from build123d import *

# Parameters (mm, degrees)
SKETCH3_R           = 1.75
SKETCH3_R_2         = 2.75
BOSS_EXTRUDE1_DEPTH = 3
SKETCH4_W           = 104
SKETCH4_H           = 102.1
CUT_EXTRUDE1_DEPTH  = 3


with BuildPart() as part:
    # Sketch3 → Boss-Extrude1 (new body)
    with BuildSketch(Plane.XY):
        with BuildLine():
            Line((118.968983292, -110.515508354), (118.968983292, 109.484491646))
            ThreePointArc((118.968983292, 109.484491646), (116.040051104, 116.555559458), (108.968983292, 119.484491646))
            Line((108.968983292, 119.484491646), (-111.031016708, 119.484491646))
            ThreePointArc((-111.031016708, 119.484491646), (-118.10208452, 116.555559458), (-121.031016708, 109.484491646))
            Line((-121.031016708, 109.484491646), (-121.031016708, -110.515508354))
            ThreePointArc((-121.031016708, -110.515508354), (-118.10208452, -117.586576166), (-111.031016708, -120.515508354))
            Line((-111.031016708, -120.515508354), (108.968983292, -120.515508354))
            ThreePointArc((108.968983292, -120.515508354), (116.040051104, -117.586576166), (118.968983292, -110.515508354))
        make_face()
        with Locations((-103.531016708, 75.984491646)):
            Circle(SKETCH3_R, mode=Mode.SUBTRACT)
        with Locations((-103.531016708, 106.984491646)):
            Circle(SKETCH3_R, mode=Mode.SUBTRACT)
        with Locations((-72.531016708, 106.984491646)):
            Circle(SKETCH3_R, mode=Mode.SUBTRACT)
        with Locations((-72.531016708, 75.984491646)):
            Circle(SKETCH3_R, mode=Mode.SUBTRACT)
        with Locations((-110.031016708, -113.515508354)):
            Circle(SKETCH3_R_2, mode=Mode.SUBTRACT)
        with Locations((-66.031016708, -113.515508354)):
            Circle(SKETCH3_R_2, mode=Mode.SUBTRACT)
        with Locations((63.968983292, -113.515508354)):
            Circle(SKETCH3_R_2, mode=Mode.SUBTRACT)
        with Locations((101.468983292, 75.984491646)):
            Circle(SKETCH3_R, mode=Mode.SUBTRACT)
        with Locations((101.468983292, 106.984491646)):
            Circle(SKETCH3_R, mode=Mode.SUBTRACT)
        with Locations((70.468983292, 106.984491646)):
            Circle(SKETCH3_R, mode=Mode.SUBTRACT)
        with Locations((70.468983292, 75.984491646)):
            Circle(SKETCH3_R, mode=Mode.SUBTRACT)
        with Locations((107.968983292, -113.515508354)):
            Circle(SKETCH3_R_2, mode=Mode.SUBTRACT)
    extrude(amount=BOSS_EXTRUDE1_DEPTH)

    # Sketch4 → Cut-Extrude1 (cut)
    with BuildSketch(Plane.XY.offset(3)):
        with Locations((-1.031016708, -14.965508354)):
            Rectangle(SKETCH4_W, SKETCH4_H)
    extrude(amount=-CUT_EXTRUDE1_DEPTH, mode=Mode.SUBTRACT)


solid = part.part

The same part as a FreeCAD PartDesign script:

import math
import FreeCAD as App
import Part
import Sketcher
from FreeCAD import Vector

doc = App.newDocument("Part")
params = doc.addObject("Spreadsheet::Sheet", "Params")
for row, (alias, value) in enumerate([
    ("sketch1_radius", "10 mm"),
    ("sketch1_diameter", "5.5 mm"),
    ("sketch1_diameter2", "3.5 mm"),
    ("sketch1_width", "220 mm"),
    ("pad1_length", "3 mm"),
    ("sketch2_width", "104 mm"),
    ("sketch2_height", "102.1 mm"),
    ("pocket1_length", "3 mm"),
], start=1):
    params.set(f"A{row}", alias)
    params.set(f"B{row}", "=" + value)
    params.setAlias(f"B{row}", alias)

body = doc.addObject("PartDesign::Body", "Body")

# Sketch on XY plane
sketch1 = body.newObject("Sketcher::SketchObject", "Sketch")
sketch1.AttachmentSupport = (doc.getObject("XY_Plane"), [""])
sketch1.MapMode = "FlatFace"
sketch1.addGeometry(Part.LineSegment(Vector(119, -110.5, 0), Vector(119, 109.5, 0)), False)
sketch1.addGeometry(Part.ArcOfCircle(Part.Circle(Vector(109, 109.5, 0), Vector(0, 0, 1), 10), math.radians(0), math.radians(90)), False)
sketch1.addGeometry(Part.LineSegment(Vector(109, 119.5, 0), Vector(-111, 119.5, 0)), False)
sketch1.addGeometry(Part.ArcOfCircle(Part.Circle(Vector(-111, 109.5, 0), Vector(0, 0, 1), 10), math.radians(90), math.radians(180)), False)
sketch1.addGeometry(Part.LineSegment(Vector(-121, 109.5, 0), Vector(-121, -110.5, 0)), False)
sketch1.addGeometry(Part.ArcOfCircle(Part.Circle(Vector(-111, -110.5, 0), Vector(0, 0, 1), 10), math.radians(180), math.radians(270)), False)
sketch1.addGeometry(Part.LineSegment(Vector(-111, -120.5, 0), Vector(109, -120.5, 0)), False)
sketch1.addGeometry(Part.ArcOfCircle(Part.Circle(Vector(109, -110.5, 0), Vector(0, 0, 1), 10), math.radians(-90), math.radians(0)), False)
sketch1.addGeometry(Part.Circle(Vector(-110, -113.5, 0), Vector(0, 0, 1), 2.8), False)
sketch1.addGeometry(Part.Circle(Vector(-66, -113.5, 0), Vector(0, 0, 1), 2.8), False)
sketch1.addGeometry(Part.Circle(Vector(64, -113.5, 0), Vector(0, 0, 1), 2.8), False)
sketch1.addGeometry(Part.Circle(Vector(108, -113.5, 0), Vector(0, 0, 1), 2.8), False)
sketch1.addGeometry(Part.Circle(Vector(-103.5, 76, 0), Vector(0, 0, 1), 1.8), False)
sketch1.addGeometry(Part.Circle(Vector(-72.5, 76, 0), Vector(0, 0, 1), 1.8), False)
sketch1.addGeometry(Part.Circle(Vector(-103.5, 107, 0), Vector(0, 0, 1), 1.8), False)
sketch1.addGeometry(Part.Circle(Vector(-72.5, 107, 0), Vector(0, 0, 1), 1.8), False)
sketch1.addGeometry(Part.Circle(Vector(70.5, 76, 0), Vector(0, 0, 1), 1.8), False)
sketch1.addGeometry(Part.Circle(Vector(101.5, 76, 0), Vector(0, 0, 1), 1.8), False)
sketch1.addGeometry(Part.Circle(Vector(70.5, 107, 0), Vector(0, 0, 1), 1.8), False)
sketch1.addGeometry(Part.Circle(Vector(101.5, 107, 0), Vector(0, 0, 1), 1.8), False)
sketch1.addConstraint(Sketcher.Constraint("Tangent", 0, 2, 1, 1))
sketch1.addConstraint(Sketcher.Constraint("Tangent", 1, 2, 2, 1))
sketch1.addConstraint(Sketcher.Constraint("Tangent", 2, 2, 3, 1))
sketch1.addConstraint(Sketcher.Constraint("Tangent", 3, 2, 4, 1))
sketch1.addConstraint(Sketcher.Constraint("Tangent", 4, 2, 5, 1))
sketch1.addConstraint(Sketcher.Constraint("Tangent", 5, 2, 6, 1))
sketch1.addConstraint(Sketcher.Constraint("Tangent", 6, 2, 7, 1))
sketch1.addConstraint(Sketcher.Constraint("Tangent", 7, 2, 0, 1))
sketch1.addConstraint(Sketcher.Constraint("Vertical", 0))
sketch1.addConstraint(Sketcher.Constraint("Horizontal", 2))
sketch1.addConstraint(Sketcher.Constraint("Vertical", 4))
sketch1.addConstraint(Sketcher.Constraint("Horizontal", 6))
sketch1.addConstraint(Sketcher.Constraint("Equal", 1, 3))
sketch1.addConstraint(Sketcher.Constraint("Equal", 3, 5))
sketch1.addConstraint(Sketcher.Constraint("Equal", 5, 7))
sketch1.addConstraint(Sketcher.Constraint("Equal", 8, 9))
sketch1.addConstraint(Sketcher.Constraint("Equal", 9, 10))
sketch1.addConstraint(Sketcher.Constraint("Equal", 10, 11))
sketch1.addConstraint(Sketcher.Constraint("Equal", 12, 13))
sketch1.addConstraint(Sketcher.Constraint("Equal", 13, 14))
sketch1.addConstraint(Sketcher.Constraint("Equal", 14, 15))
sketch1.addConstraint(Sketcher.Constraint("Equal", 15, 16))
sketch1.addConstraint(Sketcher.Constraint("Equal", 16, 17))
sketch1.addConstraint(Sketcher.Constraint("Equal", 17, 18))
sketch1.addConstraint(Sketcher.Constraint("Equal", 18, 19))
sketch1.addConstraint(Sketcher.Constraint("Horizontal", 8, 3, 9, 3))
sketch1.addConstraint(Sketcher.Constraint("Horizontal", 9, 3, 10, 3))
sketch1.addConstraint(Sketcher.Constraint("Horizontal", 10, 3, 11, 3))
sketch1.addConstraint(Sketcher.Constraint("Horizontal", 12, 3, 13, 3))
sketch1.addConstraint(Sketcher.Constraint("Horizontal", 14, 3, 15, 3))
sketch1.addConstraint(Sketcher.Constraint("Horizontal", 13, 3, 16, 3))
sketch1.addConstraint(Sketcher.Constraint("Horizontal", 16, 3, 17, 3))
sketch1.addConstraint(Sketcher.Constraint("Horizontal", 15, 3, 18, 3))
sketch1.addConstraint(Sketcher.Constraint("Horizontal", 18, 3, 19, 3))
sketch1.addConstraint(Sketcher.Constraint("Vertical", 12, 3, 14, 3))
sketch1.addConstraint(Sketcher.Constraint("Vertical", 13, 3, 15, 3))
sketch1.addConstraint(Sketcher.Constraint("Vertical", 16, 3, 18, 3))
sketch1.addConstraint(Sketcher.Constraint("Vertical", 17, 3, 19, 3))
sketch1.addConstraint(Sketcher.Constraint("Equal", 6, 0))
sketch1.addConstraint(Sketcher.Constraint("Radius", 1, 10.0))
sketch1.addConstraint(Sketcher.Constraint("Diameter", 8, 5.5))
sketch1.addConstraint(Sketcher.Constraint("Diameter", 12, 3.5))
sketch1.addConstraint(Sketcher.Constraint("DistanceX", 2, 2, 2, 1, 220.0))
sketch1.addConstraint(Sketcher.Constraint("DistanceX", 5, 3, 8, 3, 1.0))
sketch1.addConstraint(Sketcher.Constraint("DistanceY", 8, 3, 5, 3, 3.0))
sketch1.addConstraint(Sketcher.Constraint("DistanceX", 8, 3, 9, 3, 44.0))
sketch1.addConstraint(Sketcher.Constraint("DistanceX", 10, 3, 7, 3, 45.0))
sketch1.addConstraint(Sketcher.Constraint("DistanceX", 11, 3, 7, 3, 1.0))
sketch1.addConstraint(Sketcher.Constraint("DistanceX", 12, 3, 13, 3, 31.0))
sketch1.addConstraint(Sketcher.Constraint("DistanceY", 12, 3, 14, 3, 31.0))
sketch1.addConstraint(Sketcher.Constraint("DistanceX", 13, 3, 16, 3, 143.0))
sketch1.addConstraint(Sketcher.Constraint("DistanceX", 16, 3, 17, 3, 31.0))
sketch1.addConstraint(Sketcher.Constraint("DistanceX", 3, 3, 12, 3, 7.5))
sketch1.addConstraint(Sketcher.Constraint("DistanceY", 12, 3, 3, 3, 33.5))
sketch1.addConstraint(Sketcher.Constraint("DistanceY", -1, 1, 1, 3, 109.484492))
sketch1.addConstraint(Sketcher.Constraint("DistanceX", -1, 1, 1, 3, 108.968983))
sketch1.setExpression("Constraints[39]", "Params.sketch1_radius")
sketch1.setExpression("Constraints[40]", "Params.sketch1_diameter")
sketch1.setExpression("Constraints[41]", "Params.sketch1_diameter2")
sketch1.setExpression("Constraints[42]", "Params.sketch1_width")
pad1 = body.newObject("PartDesign::Pad", "Pad")
pad1.Profile = sketch1
pad1.setExpression("Length", "Params.pad1_length")

# Sketch on XY plane
sketch2 = body.newObject("Sketcher::SketchObject", "Sketch001")
sketch2.AttachmentSupport = (doc.getObject("XY_Plane"), [""])
sketch2.MapMode = "FlatFace"
sketch2.AttachmentOffset = App.Placement(Vector(0, 0, 3), App.Rotation())
sketch2.addGeometry(Part.LineSegment(Vector(-53, 36, 0), Vector(-53, -66, 0)), False)
sketch2.addGeometry(Part.LineSegment(Vector(-53, -66, 0), Vector(51, -66, 0)), False)
sketch2.addGeometry(Part.LineSegment(Vector(51, -66, 0), Vector(51, 36, 0)), False)
sketch2.addGeometry(Part.LineSegment(Vector(51, 36, 0), Vector(-53, 36, 0)), False)
sketch2.addConstraint(Sketcher.Constraint("Coincident", 0, 2, 1, 1))
sketch2.addConstraint(Sketcher.Constraint("Coincident", 1, 2, 2, 1))
sketch2.addConstraint(Sketcher.Constraint("Coincident", 2, 2, 3, 1))
sketch2.addConstraint(Sketcher.Constraint("Coincident", 3, 2, 0, 1))
sketch2.addConstraint(Sketcher.Constraint("Vertical", 0))
sketch2.addConstraint(Sketcher.Constraint("Horizontal", 1))
sketch2.addConstraint(Sketcher.Constraint("Vertical", 2))
sketch2.addConstraint(Sketcher.Constraint("Horizontal", 3))
sketch2.addConstraint(Sketcher.Constraint("DistanceX", 1, 1, 1, 2, 104.0))
sketch2.addConstraint(Sketcher.Constraint("DistanceY", 0, 2, 0, 1, 102.1))
sketch2.addConstraint(Sketcher.Constraint("DistanceY", 0, 2, -1, 1, 66.015508))
sketch2.addConstraint(Sketcher.Constraint("DistanceX", 0, 2, -1, 1, 53.031017))
sketch2.setExpression("Constraints[8]", "Params.sketch2_width")
sketch2.setExpression("Constraints[9]", "Params.sketch2_height")
pocket1 = body.newObject("PartDesign::Pocket", "Pocket")
pocket1.Profile = sketch2
pocket1.setExpression("Length", "Params.pocket1_length")

doc.recompute()
